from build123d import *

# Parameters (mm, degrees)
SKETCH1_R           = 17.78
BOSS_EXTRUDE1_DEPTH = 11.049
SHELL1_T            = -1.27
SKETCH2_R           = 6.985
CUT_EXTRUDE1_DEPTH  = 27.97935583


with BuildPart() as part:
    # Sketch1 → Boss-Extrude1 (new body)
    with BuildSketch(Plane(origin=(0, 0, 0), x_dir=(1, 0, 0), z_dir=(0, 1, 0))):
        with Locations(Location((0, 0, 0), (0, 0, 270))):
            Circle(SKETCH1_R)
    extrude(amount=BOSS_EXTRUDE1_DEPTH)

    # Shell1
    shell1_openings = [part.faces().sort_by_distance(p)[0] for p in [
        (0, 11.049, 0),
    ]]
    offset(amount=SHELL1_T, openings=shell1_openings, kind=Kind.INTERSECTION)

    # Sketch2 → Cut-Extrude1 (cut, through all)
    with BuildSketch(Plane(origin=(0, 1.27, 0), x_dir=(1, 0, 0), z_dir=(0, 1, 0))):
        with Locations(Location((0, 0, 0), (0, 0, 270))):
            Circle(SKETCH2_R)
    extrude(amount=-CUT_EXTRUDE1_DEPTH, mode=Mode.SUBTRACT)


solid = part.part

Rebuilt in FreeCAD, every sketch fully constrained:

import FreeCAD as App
import Part
import Sketcher

V = App.Vector
Q = App.Units.Quantity


def faces_at(feature, points):
    """Names of the faces that lie closest to the given points."""
    faces = feature.Shape.Faces
    near = lambda p: min(range(len(faces)), key=lambda i: faces[i].distToShape(Part.Vertex(*p))[0])
    return sorted({f"Face{near(p) + 1}" for p in points})

doc = App.newDocument("Part")
body = doc.addObject("PartDesign::Body", "Body")

# Sketch on XZ plane
sketch1 = body.newObject("Sketcher::SketchObject", "Sketch")
sketch1.AttachmentSupport = (doc.getObject("XZ_Plane"), [""])
sketch1.MapMode = "FlatFace"
sketch1.addGeometry(Part.Circle(V(0, 0, 0), V(0, 0, 1), 18), False)
sketch1.addConstraint(Sketcher.Constraint("Coincident", 0, 3, -1, 1))
sketch1.addConstraint(Sketcher.Constraint("Diameter", 0, Q("1.4 in")))
pad1 = body.newObject("PartDesign::Pad", "Pad")
pad1.Profile = sketch1
pad1.Length = Q("0.435 in")
pad1.Reversed = True
doc.recompute()

thickness = body.newObject("PartDesign::Thickness", "Thickness")
thickness.Base = (pad1, faces_at(pad1, [(0, 11.049, 0)]))
thickness.Value = Q("0.05 in")
thickness.Reversed = True
thickness.Join = "Intersection"

# Sketch on XZ plane
sketch2 = body.newObject("Sketcher::SketchObject", "Sketch001")
sketch2.AttachmentSupport = (doc.getObject("XZ_Plane"), [""])
sketch2.MapMode = "FlatFace"
sketch2.AttachmentOffset = App.Placement(V(0, 0, -0.05 * 25.4), App.Rotation())
sketch2.addGeometry(Part.Circle(V(0, 0, 0), V(0, 0, 1), 7), False)
sketch2.addConstraint(Sketcher.Constraint("Coincident", 0, 3, -1, 1))
sketch2.addConstraint(Sketcher.Constraint("Diameter", 0, Q("0.55 in")))
pocket1 = body.newObject("PartDesign::Pocket", "Pocket")
pocket1.Profile = sketch2
pocket1.Type = "ThroughAll"
pocket1.Reversed = True

doc.recompute()
